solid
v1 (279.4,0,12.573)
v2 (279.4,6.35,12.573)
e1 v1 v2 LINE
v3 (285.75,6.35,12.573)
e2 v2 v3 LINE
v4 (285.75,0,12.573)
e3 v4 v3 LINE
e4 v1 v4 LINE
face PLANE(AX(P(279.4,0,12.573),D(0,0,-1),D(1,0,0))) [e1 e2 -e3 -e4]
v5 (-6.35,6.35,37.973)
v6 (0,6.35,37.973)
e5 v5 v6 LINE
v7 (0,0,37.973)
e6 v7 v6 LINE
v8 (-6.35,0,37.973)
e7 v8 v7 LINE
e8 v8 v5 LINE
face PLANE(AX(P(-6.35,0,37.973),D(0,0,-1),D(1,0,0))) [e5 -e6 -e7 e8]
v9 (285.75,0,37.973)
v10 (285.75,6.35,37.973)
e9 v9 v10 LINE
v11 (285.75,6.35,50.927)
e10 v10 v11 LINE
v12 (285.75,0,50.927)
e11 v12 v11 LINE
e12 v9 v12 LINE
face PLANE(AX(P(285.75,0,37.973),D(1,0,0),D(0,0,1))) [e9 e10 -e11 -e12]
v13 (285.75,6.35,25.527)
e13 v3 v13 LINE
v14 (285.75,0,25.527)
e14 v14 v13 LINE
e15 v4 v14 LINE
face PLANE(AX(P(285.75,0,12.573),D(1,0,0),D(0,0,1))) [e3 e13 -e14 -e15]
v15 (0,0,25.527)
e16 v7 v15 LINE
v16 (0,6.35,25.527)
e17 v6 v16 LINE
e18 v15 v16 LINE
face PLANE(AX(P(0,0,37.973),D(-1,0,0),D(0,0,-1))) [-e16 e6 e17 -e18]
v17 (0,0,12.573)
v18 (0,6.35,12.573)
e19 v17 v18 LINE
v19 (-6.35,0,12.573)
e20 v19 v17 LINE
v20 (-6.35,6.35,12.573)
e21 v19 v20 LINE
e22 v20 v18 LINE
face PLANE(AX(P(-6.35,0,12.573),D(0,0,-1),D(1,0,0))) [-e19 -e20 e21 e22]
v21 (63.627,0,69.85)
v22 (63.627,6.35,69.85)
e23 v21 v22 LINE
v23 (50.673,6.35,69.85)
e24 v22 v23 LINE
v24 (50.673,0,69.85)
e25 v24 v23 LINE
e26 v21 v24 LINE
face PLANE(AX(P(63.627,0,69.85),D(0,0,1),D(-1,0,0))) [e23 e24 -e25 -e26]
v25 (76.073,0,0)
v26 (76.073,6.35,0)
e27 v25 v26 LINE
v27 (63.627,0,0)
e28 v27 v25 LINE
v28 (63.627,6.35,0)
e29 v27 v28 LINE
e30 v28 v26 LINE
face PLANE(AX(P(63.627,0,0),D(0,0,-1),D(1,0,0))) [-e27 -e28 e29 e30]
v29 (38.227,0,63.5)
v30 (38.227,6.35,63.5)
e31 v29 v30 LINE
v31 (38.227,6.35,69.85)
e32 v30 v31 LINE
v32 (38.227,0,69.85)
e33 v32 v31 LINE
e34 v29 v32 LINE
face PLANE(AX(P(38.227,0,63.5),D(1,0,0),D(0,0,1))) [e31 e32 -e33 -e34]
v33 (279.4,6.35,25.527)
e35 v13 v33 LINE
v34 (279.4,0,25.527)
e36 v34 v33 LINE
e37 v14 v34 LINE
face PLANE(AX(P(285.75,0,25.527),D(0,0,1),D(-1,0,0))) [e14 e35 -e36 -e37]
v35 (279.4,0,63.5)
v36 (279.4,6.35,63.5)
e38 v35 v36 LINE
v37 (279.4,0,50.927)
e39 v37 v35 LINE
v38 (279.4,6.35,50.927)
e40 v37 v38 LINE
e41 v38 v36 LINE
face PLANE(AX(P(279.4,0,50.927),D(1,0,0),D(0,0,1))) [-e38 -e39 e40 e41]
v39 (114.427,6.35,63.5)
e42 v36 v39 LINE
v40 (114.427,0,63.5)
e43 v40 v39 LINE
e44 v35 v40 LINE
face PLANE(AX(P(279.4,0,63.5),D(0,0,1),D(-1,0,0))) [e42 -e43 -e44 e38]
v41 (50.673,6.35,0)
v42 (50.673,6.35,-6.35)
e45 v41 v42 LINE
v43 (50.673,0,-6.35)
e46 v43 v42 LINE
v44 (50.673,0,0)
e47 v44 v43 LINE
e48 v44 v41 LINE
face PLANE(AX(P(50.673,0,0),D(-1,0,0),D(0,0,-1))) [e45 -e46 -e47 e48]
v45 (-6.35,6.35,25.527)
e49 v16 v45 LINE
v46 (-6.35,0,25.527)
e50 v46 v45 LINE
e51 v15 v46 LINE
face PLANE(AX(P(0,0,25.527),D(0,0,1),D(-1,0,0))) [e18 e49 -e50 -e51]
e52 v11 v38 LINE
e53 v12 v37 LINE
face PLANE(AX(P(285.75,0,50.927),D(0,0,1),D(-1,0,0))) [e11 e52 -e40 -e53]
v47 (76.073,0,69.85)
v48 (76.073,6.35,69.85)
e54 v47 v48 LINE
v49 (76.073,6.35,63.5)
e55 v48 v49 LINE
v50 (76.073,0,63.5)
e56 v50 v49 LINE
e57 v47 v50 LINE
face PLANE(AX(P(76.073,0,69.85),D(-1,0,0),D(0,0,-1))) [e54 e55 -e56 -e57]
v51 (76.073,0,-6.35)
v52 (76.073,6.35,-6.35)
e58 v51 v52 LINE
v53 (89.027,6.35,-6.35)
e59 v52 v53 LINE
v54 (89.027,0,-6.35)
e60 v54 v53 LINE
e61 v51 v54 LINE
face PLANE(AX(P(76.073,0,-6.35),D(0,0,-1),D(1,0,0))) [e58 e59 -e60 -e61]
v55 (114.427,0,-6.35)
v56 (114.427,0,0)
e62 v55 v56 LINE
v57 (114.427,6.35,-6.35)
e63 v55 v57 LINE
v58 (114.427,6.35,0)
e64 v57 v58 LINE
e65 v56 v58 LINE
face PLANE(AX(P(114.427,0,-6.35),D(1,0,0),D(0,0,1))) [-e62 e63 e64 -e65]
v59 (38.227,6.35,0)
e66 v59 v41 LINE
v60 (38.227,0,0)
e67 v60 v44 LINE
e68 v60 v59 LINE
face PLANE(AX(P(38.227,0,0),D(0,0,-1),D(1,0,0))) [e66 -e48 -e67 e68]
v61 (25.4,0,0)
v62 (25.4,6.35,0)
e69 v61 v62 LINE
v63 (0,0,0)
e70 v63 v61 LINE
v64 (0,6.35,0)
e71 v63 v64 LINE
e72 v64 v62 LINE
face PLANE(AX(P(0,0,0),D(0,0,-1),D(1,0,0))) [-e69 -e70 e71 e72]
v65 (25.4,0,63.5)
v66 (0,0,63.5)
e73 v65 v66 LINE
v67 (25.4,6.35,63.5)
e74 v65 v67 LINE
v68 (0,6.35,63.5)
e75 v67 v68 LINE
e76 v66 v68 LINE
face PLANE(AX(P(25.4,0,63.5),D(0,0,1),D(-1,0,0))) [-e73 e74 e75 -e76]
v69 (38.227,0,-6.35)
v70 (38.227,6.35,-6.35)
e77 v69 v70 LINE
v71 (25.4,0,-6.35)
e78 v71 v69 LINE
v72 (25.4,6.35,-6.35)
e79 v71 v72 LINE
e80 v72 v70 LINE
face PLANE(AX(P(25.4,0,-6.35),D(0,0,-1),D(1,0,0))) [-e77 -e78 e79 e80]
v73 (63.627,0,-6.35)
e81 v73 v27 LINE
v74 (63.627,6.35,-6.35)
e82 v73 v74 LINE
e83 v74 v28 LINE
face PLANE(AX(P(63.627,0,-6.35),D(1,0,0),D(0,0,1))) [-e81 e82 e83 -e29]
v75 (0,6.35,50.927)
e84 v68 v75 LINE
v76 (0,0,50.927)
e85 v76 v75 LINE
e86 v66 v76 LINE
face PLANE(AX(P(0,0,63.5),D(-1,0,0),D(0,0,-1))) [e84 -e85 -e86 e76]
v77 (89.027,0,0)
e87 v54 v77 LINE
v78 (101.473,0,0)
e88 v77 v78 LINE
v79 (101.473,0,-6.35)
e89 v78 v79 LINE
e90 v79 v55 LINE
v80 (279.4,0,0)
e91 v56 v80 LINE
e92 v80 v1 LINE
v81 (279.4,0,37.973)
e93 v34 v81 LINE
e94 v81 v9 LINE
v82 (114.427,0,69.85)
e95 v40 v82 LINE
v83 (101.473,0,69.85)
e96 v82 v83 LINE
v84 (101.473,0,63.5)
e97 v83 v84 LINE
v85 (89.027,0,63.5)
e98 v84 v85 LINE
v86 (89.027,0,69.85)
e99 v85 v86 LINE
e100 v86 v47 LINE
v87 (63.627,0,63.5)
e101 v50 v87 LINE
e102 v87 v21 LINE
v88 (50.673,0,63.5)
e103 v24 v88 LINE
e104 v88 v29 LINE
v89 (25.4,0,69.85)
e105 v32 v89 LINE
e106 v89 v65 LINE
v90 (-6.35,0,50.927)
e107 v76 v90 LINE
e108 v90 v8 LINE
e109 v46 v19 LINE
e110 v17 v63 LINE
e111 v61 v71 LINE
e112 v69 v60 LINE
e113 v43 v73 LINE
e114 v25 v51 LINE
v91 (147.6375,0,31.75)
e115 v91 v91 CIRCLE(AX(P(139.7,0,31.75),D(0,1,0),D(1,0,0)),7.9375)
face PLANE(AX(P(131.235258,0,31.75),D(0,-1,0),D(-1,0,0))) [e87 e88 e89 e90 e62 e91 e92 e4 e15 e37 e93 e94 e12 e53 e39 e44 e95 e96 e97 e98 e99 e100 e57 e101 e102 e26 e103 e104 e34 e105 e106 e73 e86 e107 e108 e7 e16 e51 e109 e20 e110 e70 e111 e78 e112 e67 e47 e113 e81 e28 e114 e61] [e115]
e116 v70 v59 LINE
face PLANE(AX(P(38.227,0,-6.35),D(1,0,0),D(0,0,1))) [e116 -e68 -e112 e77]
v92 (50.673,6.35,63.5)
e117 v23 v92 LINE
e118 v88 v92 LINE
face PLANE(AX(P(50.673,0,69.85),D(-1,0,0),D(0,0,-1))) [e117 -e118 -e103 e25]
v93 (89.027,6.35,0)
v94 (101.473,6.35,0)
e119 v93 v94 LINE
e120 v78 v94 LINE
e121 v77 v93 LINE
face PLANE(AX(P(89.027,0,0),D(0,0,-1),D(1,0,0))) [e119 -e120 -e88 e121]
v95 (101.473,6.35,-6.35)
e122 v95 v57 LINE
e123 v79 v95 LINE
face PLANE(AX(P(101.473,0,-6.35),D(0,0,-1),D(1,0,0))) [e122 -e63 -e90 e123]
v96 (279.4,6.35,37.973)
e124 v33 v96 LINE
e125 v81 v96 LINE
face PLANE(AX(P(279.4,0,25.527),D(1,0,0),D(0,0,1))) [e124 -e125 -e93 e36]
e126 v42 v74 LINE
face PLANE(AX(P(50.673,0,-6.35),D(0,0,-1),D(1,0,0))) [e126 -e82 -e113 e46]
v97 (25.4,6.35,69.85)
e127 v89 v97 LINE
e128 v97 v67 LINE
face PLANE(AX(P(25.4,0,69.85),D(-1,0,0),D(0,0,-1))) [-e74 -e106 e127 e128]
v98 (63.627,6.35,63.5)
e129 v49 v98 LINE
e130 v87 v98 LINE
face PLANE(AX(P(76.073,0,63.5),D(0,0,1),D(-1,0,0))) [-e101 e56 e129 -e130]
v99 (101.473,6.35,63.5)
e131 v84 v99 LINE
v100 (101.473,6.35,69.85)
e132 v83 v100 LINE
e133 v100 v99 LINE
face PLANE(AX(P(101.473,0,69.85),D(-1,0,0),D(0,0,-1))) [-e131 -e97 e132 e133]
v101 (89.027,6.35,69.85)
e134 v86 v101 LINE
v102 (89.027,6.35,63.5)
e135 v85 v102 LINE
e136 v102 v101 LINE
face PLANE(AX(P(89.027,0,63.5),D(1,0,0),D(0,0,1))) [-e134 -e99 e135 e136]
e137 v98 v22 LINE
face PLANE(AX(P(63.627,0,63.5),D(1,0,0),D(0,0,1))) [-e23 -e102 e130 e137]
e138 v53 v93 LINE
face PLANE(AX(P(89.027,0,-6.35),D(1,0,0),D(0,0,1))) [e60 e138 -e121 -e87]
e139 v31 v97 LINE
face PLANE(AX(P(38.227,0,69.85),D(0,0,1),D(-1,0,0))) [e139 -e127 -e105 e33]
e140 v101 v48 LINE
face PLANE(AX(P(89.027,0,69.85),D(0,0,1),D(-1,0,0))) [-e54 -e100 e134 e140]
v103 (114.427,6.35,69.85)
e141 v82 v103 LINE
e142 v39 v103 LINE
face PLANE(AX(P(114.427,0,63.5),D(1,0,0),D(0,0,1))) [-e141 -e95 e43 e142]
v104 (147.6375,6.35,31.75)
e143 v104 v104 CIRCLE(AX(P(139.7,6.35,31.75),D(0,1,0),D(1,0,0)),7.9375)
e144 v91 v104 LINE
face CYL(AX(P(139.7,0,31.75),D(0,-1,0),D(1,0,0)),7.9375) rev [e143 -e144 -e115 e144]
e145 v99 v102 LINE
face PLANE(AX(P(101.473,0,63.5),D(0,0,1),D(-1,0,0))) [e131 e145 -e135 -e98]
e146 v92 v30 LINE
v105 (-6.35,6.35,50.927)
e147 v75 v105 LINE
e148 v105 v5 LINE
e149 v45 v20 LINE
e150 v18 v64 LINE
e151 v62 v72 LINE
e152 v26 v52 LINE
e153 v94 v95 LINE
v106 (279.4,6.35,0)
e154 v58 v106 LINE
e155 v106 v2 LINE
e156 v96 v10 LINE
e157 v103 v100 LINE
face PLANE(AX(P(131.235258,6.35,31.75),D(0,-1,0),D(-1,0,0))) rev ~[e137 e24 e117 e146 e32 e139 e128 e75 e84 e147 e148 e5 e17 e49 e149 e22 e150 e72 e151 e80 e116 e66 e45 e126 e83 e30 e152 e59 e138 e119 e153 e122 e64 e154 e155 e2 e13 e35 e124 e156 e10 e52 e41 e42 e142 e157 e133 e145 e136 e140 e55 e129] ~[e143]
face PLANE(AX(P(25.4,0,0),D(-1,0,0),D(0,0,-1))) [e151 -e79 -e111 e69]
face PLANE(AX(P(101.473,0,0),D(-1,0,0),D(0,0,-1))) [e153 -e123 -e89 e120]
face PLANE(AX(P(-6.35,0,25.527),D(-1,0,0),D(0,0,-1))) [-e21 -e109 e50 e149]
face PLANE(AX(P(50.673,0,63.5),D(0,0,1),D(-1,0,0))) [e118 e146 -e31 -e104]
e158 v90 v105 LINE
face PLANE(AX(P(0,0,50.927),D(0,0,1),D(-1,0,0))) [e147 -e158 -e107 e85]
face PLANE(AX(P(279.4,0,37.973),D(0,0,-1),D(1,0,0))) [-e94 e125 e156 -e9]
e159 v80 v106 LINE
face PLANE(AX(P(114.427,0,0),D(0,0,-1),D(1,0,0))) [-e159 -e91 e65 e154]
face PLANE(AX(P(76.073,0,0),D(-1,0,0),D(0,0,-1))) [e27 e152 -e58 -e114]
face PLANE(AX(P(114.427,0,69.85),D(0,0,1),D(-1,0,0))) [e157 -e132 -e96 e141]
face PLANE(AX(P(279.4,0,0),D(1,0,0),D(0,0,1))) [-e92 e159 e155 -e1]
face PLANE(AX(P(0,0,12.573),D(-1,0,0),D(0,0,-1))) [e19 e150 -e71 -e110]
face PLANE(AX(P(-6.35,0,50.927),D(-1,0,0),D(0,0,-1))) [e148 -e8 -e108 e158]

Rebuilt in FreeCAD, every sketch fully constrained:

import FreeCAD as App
import Part
import Sketcher
Q = App.Units.Quantity


def add_polygon(sketch, points):
    """Adds a closed chain of lines whose ends are joined by coincident constraints."""
    first, n = sketch.GeometryCount, len(points)
    for a, b in zip(points, points[1:] + points[:1]):
        sketch.addGeometry(Part.LineSegment(App.Vector(*a, 0), App.Vector(*b, 0)), False)
    for i in range(n):
        sketch.addConstraint(Sketcher.Constraint("Coincident", first + i, 2, first + (i + 1) % n, 1))

doc = App.newDocument("Part")
body = doc.addObject("PartDesign::Body", "Body")

# Sketch on XZ plane
sketch1 = body.newObject("Sketcher::SketchObject", "Sketch")
sketch1.AttachmentSupport = (doc.getObject("XZ_Plane"), [""])
sketch1.MapMode = "FlatFace"
add_polygon(sketch1, [(279, 13), (279, 0), (114, 0), (114, -6), (101, -6), (101, 0), (89, 0), (89, -6), (76, -6), (76, 0), (64, 0), (64, -6), (51, -6), (51, 0), (38, 0), (38, -6), (25, -6), (25, 0), (0, 0), (0, 13), (-6, 13), (-6, 26), (0, 26), (0, 38), (-6, 38), (-6, 51), (0, 51), (0, 64), (25, 64), (25, 70), (38, 70), (38, 64), (51, 64), (51, 70), (64, 70), (64, 64), (76, 64), (76, 70), (89, 70), (89, 64), (101, 64), (101, 70), (114, 70), (114, 64), (279, 64), (279, 51), (286, 51), (286, 38), (279, 38), (279, 26), (286, 26), (286, 13)])  # lines 0-51
sketch1.addGeometry(Part.Circle(App.Vector(140, 32, 0), App.Vector(0, 0, 1), 8), False)  # 52
sketch1.addConstraint([
    Sketcher.Constraint("Vertical", 0),
    Sketcher.Constraint("Horizontal", 1),
    Sketcher.Constraint("Vertical", 2),
    Sketcher.Constraint("Horizontal", 3),
    Sketcher.Constraint("Vertical", 4),
    Sketcher.Constraint("Horizontal", 5),
    Sketcher.Constraint("Vertical", 6),
    Sketcher.Constraint("Horizontal", 7),
    Sketcher.Constraint("Vertical", 8),
    Sketcher.Constraint("Horizontal", 9),
    Sketcher.Constraint("Vertical", 10),
    Sketcher.Constraint("Horizontal", 11),
    Sketcher.Constraint("Vertical", 12),
    Sketcher.Constraint("Horizontal", 13),
    Sketcher.Constraint("Vertical", 14),
    Sketcher.Constraint("Horizontal", 15),
    Sketcher.Constraint("Vertical", 16),
    Sketcher.Constraint("Horizontal", 17),
    Sketcher.Constraint("Vertical", 18),
    Sketcher.Constraint("Horizontal", 19),
    Sketcher.Constraint("Vertical", 20),
    Sketcher.Constraint("Horizontal", 21),
    Sketcher.Constraint("Vertical", 22),
    Sketcher.Constraint("Horizontal", 23),
    Sketcher.Constraint("Vertical", 24),
    Sketcher.Constraint("Horizontal", 25),
    Sketcher.Constraint("Vertical", 26),
    Sketcher.Constraint("Horizontal", 27),
    Sketcher.Constraint("Vertical", 28),
    Sketcher.Constraint("Horizontal", 29),
    Sketcher.Constraint("Vertical", 30),
    Sketcher.Constraint("Horizontal", 31),
    Sketcher.Constraint("Vertical", 32),
    Sketcher.Constraint("Horizontal", 33),
    Sketcher.Constraint("Vertical", 34),
    Sketcher.Constraint("Horizontal", 35),
    Sketcher.Constraint("Vertical", 36),
    Sketcher.Constraint("Horizontal", 37),
    Sketcher.Constraint("Vertical", 38),
    Sketcher.Constraint("Horizontal", 39),
    Sketcher.Constraint("Vertical", 40),
    Sketcher.Constraint("Horizontal", 41),
    Sketcher.Constraint("Vertical", 42),
    Sketcher.Constraint("Horizontal", 43),
    Sketcher.Constraint("Vertical", 44),
    Sketcher.Constraint("Horizontal", 45),
    Sketcher.Constraint("Vertical", 46),
    Sketcher.Constraint("Horizontal", 47),
    Sketcher.Constraint("Vertical", 48),
    Sketcher.Constraint("Horizontal", 49),
    Sketcher.Constraint("Vertical", 50),
    Sketcher.Constraint("Horizontal", 51),
    Sketcher.Constraint("Coincident", 17, 2, -1, 1),
    Sketcher.Constraint("PointOnObject", 0, 2, -1),
    Sketcher.Constraint("PointOnObject", 4, 2, -1),
    Sketcher.Constraint("PointOnObject", 8, 2, -1),
    Sketcher.Constraint("PointOnObject", 12, 2, -1),
    Sketcher.Constraint("PointOnObject", 21, 2, -2),
    Sketcher.Constraint("PointOnObject", 25, 2, -2),
    Sketcher.Constraint("Horizontal", 3, 2, 6, 2),
    Sketcher.Constraint("Horizontal", 7, 2, 10, 2),
    Sketcher.Constraint("Horizontal", 11, 2, 14, 2),
    Sketcher.Constraint("Horizontal", 27, 2, 30, 2),
    Sketcher.Constraint("Horizontal", 29, 2, 32, 2),
    Sketcher.Constraint("Horizontal", 31, 2, 34, 2),
    Sketcher.Constraint("Horizontal", 33, 2, 36, 2),
    Sketcher.Constraint("Horizontal", 35, 2, 38, 2),
    Sketcher.Constraint("Horizontal", 37, 2, 40, 2),
    Sketcher.Constraint("Horizontal", 39, 2, 42, 2),
    Sketcher.Constraint("Horizontal", 25, 2, 44, 2),
    Sketcher.Constraint("Horizontal", 23, 2, 46, 2),
    Sketcher.Constraint("Horizontal", 21, 2, 48, 2),
    Sketcher.Constraint("Horizontal", 19, 2, 50, 2),
    Sketcher.Constraint("Vertical", 20, 2, 23, 2),
    Sketcher.Constraint("Vertical", 16, 2, 27, 2),
    Sketcher.Constraint("Vertical", 14, 2, 29, 2),
    Sketcher.Constraint("Vertical", 12, 2, 31, 2),
    Sketcher.Constraint("Vertical", 10, 2, 33, 2),
    Sketcher.Constraint("Vertical", 8, 2, 35, 2),
    Sketcher.Constraint("Vertical", 6, 2, 37, 2),
    Sketcher.Constraint("Vertical", 4, 2, 39, 2),
    Sketcher.Constraint("Vertical", 2, 2, 41, 2),
    Sketcher.Constraint("Vertical", 0, 2, 43, 2),
    Sketcher.Constraint("Vertical", 44, 2, 47, 2),
    Sketcher.Constraint("Vertical", 46, 2, 49, 2),
    Sketcher.Constraint("Equal", 3, 7),
    Sketcher.Constraint("Equal", 5, 9),
    Sketcher.Constraint("Equal", 7, 11),
    Sketcher.Constraint("Equal", 9, 13),
    Sketcher.Constraint("Equal", 25, 45),
    Sketcher.Constraint("Equal", 51, 2),
    Sketcher.Constraint("Equal", 41, 20),
    Sketcher.Constraint("Equal", 39, 22),
    Sketcher.Constraint("Equal", 20, 24),
    Sketcher.Constraint("Equal", 18, 26),
    Sketcher.Constraint("Equal", 16, 28),
    Sketcher.Constraint("DistanceX", 17, 2, 17, 1, Q("1 in")),
    Sketcher.Constraint("Diameter", 52, Q("0.625 in")),
    Sketcher.Constraint("DistanceX", -1, 1, 0, 2, Q("11 in")),
    Sketcher.Constraint("DistanceX", 5, 2, 1, 2, Q("1 in")),
    Sketcher.Constraint("DistanceX", 3, 2, 3, 1, Q("0.51 in")),
    Sketcher.Constraint("DistanceX", 19, 2, 19, 1, Q("0.25 in")),
    Sketcher.Constraint("DistanceX", -1, 1, 52, 3, Q("5.5 in")),
    Sketcher.Constraint("DistanceY", -1, 1, 26, 2, Q("2.5 in")),
    Sketcher.Constraint("DistanceY", 2, 2, 52, 3, Q("1.5 in")),
    Sketcher.Constraint("DistanceX", 1, 2, 1, 1, Q("6.495 in")),
])
pad1 = body.newObject("PartDesign::Pad", "Pad")
pad1.Profile = sketch1
pad1.Length = Q("0.25 in")
pad1.Reversed = True

doc.recompute()
